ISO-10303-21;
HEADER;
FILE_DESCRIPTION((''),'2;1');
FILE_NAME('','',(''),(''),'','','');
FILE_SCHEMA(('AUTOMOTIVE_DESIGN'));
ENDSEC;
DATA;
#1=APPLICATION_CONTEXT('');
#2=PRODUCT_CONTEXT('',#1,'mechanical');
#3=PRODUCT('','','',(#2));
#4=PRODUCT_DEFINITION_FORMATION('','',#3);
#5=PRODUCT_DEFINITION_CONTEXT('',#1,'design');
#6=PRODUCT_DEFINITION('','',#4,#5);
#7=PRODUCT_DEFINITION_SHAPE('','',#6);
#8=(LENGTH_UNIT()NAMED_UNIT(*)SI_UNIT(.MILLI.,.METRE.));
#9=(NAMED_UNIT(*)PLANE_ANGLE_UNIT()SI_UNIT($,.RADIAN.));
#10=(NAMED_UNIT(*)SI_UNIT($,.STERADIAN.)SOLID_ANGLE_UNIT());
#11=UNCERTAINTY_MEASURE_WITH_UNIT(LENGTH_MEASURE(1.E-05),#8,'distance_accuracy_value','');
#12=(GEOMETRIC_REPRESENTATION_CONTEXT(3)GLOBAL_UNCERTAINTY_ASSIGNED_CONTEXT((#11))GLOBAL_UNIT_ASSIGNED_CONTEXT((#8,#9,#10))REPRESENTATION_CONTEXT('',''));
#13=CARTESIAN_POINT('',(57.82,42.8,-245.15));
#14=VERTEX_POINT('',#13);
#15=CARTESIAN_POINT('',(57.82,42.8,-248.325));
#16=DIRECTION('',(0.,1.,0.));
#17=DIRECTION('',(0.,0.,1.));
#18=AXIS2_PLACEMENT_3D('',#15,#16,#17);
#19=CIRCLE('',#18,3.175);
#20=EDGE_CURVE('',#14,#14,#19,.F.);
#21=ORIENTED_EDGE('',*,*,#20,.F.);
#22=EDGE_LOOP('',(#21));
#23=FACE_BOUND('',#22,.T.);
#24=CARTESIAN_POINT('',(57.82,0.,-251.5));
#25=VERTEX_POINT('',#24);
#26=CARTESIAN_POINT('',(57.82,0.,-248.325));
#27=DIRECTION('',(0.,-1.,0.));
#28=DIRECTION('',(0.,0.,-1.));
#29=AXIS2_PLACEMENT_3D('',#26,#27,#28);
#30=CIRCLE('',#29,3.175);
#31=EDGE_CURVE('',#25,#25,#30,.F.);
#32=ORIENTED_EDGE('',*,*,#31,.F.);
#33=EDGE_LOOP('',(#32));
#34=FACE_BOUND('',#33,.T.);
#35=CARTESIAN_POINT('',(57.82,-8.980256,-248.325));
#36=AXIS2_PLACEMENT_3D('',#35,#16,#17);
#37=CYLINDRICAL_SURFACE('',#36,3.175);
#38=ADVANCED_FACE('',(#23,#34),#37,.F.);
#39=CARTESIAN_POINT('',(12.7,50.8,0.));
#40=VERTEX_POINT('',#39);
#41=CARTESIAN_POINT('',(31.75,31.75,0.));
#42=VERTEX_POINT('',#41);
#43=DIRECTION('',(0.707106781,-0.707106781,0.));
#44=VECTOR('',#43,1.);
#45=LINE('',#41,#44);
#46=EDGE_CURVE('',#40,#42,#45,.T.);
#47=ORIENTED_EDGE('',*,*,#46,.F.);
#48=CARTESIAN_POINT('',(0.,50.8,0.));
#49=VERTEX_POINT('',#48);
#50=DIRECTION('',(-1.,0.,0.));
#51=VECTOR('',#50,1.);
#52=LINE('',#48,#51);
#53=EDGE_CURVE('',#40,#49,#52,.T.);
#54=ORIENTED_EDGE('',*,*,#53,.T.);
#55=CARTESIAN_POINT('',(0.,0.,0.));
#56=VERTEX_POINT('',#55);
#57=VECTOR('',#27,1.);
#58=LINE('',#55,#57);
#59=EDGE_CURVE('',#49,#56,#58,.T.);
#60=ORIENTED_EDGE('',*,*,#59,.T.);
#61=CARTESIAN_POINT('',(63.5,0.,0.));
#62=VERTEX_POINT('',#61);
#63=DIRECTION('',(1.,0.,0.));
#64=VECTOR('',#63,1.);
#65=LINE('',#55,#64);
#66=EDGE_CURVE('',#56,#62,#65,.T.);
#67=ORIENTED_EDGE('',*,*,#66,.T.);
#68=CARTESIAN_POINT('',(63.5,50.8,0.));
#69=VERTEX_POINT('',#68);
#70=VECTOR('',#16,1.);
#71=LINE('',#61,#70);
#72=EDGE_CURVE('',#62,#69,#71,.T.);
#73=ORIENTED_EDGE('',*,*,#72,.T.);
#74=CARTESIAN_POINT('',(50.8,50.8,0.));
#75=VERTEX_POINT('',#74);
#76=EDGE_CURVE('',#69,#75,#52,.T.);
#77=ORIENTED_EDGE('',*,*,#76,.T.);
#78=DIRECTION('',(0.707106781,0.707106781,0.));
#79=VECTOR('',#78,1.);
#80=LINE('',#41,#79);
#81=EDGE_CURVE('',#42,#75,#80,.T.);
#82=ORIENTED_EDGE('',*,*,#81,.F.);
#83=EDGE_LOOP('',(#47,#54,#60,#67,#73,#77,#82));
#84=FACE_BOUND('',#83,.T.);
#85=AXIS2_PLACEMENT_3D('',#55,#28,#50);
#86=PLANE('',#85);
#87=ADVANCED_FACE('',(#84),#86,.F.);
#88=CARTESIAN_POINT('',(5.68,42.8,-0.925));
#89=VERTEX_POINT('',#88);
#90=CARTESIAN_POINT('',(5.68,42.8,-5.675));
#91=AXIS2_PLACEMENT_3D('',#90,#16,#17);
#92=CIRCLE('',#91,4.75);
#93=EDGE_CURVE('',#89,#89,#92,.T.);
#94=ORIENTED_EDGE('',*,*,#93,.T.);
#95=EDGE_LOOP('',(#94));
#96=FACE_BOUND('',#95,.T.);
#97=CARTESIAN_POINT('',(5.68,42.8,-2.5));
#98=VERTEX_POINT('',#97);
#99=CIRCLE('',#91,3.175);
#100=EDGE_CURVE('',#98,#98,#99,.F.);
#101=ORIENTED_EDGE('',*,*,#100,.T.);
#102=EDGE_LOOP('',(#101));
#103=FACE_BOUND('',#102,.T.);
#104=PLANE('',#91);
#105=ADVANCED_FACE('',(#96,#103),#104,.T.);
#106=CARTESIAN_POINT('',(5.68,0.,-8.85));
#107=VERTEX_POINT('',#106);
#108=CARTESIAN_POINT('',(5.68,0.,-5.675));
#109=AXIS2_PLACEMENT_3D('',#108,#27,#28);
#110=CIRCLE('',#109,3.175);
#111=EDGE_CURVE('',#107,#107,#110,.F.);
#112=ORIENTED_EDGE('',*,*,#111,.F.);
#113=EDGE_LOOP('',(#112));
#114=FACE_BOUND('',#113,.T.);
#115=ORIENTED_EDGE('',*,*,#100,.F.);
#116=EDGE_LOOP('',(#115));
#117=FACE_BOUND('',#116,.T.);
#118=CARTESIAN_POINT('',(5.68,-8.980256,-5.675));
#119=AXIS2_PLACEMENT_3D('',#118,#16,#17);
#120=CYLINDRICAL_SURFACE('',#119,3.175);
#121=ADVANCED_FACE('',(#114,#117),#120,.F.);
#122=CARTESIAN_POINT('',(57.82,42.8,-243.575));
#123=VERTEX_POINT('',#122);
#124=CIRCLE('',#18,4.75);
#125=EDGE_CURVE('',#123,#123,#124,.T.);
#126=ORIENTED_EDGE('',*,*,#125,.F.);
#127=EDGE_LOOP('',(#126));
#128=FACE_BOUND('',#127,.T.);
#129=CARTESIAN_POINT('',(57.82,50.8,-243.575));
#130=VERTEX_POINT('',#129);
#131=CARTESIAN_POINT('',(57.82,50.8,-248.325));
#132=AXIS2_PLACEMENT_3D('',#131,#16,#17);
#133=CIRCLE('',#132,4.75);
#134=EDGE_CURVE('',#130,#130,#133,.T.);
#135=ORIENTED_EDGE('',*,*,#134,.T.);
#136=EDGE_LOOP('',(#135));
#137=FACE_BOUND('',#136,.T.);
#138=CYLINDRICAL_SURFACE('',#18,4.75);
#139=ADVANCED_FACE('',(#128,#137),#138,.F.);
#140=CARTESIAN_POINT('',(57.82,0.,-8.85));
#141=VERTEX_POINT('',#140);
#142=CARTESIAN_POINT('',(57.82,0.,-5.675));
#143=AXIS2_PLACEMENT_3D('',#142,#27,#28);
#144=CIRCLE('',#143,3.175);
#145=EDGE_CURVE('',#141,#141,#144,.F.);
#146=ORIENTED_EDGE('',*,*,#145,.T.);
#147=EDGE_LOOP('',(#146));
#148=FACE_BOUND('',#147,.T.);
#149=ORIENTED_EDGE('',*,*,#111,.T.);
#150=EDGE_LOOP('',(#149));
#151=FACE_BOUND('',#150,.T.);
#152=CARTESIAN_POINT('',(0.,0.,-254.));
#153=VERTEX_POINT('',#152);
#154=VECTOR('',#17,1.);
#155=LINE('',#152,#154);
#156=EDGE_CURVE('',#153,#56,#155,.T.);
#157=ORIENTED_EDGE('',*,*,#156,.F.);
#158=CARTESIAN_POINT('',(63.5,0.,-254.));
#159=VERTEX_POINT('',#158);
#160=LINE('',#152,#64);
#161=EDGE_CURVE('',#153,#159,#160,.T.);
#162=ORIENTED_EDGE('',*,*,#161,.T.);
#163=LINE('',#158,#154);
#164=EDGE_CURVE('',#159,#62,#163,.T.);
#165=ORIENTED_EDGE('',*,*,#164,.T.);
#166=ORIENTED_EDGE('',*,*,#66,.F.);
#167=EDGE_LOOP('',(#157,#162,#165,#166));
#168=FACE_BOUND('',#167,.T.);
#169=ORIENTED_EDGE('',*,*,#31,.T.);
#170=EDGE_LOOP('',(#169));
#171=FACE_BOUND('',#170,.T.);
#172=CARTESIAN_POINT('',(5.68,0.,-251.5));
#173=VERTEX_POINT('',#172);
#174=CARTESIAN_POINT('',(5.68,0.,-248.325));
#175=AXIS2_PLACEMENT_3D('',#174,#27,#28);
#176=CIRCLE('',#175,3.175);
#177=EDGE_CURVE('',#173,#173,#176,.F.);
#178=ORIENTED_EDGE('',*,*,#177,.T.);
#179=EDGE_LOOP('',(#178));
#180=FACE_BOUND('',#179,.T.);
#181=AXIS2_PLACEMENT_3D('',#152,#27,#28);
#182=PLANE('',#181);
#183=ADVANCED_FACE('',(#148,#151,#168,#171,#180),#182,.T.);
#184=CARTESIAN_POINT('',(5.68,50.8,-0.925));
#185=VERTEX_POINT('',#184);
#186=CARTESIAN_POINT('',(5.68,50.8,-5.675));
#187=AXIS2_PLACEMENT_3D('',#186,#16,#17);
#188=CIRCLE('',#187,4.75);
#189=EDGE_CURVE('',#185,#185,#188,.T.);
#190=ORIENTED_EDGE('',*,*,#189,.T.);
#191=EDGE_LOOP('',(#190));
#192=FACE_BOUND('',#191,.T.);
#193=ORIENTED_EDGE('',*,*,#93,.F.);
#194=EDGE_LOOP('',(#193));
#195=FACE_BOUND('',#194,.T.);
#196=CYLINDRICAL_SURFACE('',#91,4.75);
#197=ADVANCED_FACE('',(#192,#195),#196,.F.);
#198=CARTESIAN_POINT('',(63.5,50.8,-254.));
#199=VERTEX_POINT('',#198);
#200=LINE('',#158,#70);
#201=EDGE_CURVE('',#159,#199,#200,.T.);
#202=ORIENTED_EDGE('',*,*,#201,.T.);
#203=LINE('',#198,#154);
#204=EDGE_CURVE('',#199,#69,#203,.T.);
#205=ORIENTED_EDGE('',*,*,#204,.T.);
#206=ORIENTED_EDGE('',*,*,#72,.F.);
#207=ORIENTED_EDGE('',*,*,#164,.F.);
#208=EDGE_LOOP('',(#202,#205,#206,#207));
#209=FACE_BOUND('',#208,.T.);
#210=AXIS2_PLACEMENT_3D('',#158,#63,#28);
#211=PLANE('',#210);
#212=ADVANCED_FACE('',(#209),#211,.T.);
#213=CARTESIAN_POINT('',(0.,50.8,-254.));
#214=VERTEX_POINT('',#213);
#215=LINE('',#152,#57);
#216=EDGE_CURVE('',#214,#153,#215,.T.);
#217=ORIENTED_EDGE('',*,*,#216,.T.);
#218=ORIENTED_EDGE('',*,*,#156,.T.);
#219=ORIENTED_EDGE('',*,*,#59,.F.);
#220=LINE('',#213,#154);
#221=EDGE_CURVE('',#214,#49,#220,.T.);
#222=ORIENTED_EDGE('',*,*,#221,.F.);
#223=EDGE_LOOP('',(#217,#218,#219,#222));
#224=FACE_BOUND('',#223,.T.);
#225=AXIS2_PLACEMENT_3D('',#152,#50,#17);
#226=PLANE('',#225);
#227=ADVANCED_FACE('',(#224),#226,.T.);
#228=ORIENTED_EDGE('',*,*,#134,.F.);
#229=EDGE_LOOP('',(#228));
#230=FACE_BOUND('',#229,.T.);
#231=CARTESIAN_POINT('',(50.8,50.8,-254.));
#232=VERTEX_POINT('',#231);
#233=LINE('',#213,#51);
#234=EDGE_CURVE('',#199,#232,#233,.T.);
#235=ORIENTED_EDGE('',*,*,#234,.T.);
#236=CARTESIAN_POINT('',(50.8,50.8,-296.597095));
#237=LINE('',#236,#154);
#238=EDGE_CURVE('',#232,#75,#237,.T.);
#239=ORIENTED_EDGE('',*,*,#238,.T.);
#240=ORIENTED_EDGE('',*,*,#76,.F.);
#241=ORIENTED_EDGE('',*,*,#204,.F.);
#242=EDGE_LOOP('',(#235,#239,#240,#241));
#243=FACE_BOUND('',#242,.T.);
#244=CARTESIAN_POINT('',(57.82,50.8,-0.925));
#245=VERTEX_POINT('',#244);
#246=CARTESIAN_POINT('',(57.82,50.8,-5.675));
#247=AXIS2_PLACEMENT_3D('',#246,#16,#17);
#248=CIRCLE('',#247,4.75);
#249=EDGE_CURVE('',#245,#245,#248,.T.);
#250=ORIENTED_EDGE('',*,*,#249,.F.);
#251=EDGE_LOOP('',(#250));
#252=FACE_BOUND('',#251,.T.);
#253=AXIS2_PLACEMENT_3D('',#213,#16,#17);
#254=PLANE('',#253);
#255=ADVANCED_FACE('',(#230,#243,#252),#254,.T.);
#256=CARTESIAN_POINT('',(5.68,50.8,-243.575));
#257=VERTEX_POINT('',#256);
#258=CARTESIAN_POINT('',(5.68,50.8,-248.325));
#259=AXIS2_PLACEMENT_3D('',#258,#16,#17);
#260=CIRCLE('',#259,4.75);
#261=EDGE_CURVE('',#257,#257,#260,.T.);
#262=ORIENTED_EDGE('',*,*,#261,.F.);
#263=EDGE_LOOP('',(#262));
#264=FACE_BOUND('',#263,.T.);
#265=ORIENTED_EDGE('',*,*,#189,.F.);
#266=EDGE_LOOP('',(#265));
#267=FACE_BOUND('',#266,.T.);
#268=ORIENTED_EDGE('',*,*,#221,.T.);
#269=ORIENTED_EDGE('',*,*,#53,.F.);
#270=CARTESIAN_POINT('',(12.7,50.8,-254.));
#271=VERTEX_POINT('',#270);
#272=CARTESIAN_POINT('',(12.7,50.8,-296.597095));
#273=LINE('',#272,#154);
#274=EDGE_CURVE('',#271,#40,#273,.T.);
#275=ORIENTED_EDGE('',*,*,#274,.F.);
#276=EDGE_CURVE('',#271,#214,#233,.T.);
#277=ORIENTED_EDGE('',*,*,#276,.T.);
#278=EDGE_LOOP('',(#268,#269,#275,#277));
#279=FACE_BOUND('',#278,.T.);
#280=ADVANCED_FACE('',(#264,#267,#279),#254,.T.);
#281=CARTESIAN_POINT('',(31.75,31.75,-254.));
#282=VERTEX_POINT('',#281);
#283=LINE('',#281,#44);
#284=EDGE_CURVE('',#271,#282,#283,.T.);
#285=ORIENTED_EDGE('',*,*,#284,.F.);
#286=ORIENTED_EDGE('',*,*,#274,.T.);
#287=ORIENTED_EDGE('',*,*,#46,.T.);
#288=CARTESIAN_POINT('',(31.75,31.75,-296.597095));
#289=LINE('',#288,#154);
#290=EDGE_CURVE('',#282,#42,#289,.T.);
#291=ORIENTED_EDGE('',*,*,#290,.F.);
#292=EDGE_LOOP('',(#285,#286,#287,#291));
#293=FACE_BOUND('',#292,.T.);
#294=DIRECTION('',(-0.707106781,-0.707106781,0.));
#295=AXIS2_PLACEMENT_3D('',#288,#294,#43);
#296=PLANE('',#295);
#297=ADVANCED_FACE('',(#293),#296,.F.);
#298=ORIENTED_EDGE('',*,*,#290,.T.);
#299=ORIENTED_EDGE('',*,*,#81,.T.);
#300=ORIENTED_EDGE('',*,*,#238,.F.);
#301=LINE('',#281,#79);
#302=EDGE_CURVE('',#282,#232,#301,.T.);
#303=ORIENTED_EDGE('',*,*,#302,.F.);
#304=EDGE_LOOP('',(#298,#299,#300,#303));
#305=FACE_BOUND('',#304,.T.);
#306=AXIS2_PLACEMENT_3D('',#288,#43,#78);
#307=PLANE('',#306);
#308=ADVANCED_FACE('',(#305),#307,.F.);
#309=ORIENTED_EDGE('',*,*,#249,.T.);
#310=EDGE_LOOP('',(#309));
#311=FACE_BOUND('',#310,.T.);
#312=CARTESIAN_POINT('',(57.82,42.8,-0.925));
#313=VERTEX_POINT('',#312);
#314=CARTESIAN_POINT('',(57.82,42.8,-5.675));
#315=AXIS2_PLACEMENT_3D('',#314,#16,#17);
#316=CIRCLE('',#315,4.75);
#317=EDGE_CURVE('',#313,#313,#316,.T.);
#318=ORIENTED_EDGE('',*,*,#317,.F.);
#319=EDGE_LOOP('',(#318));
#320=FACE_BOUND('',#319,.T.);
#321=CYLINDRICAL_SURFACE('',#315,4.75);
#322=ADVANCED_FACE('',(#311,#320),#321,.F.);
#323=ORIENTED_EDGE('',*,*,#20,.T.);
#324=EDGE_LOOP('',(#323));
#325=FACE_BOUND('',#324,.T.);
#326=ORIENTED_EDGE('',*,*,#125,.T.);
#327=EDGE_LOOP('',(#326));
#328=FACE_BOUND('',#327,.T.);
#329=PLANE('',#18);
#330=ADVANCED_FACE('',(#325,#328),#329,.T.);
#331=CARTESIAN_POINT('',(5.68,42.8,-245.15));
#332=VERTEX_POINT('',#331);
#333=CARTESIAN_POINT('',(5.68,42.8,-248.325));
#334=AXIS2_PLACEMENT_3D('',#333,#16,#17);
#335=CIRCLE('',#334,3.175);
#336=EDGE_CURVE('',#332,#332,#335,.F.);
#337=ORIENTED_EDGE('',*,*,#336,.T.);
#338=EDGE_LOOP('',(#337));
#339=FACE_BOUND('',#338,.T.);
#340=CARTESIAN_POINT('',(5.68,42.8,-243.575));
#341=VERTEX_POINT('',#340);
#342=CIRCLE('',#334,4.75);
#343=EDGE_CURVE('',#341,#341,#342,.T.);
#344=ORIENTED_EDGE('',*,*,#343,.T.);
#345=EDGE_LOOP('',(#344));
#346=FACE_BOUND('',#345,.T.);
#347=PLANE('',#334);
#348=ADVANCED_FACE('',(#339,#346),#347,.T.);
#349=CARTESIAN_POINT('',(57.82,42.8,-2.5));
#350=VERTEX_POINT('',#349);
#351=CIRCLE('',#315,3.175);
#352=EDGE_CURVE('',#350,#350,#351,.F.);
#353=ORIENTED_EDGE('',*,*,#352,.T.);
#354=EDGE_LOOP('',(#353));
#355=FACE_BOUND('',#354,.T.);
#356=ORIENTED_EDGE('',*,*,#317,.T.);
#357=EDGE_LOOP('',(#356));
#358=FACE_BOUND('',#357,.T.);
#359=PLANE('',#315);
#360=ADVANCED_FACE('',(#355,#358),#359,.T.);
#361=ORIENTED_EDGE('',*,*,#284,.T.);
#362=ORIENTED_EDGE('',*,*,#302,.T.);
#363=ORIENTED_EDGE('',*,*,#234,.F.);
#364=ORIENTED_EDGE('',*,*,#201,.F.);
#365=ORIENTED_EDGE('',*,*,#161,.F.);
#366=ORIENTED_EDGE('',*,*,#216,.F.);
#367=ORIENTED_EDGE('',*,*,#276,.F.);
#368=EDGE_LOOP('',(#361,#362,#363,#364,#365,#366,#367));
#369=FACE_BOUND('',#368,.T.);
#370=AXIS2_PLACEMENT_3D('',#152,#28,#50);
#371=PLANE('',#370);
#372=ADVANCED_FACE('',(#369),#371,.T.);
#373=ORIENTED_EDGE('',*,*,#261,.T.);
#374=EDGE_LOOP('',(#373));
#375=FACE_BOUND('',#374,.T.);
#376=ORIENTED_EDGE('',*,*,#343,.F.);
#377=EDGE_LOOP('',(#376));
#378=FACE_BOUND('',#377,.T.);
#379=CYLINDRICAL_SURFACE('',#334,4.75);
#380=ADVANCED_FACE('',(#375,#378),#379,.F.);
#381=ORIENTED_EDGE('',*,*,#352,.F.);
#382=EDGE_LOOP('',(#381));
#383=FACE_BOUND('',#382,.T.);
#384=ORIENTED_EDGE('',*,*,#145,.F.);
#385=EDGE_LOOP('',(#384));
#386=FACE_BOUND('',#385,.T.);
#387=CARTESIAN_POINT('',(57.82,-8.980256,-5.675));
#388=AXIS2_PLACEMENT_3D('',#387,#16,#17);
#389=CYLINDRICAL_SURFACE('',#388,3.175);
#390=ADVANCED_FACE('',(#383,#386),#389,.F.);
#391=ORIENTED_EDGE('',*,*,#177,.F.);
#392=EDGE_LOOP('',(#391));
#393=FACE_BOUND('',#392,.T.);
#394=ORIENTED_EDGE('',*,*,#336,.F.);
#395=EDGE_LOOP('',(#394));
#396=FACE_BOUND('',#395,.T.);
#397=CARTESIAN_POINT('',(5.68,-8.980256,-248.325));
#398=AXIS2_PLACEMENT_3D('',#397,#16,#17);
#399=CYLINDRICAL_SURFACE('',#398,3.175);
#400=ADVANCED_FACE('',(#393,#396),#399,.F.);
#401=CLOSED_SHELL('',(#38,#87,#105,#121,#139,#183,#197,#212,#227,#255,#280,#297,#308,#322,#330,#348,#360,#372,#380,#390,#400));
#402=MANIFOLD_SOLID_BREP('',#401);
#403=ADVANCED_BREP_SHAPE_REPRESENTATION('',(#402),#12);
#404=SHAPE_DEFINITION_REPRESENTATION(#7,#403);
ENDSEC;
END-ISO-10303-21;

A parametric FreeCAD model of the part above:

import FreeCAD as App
import Part
import Sketcher

V = App.Vector
Q = App.Units.Quantity

doc = App.newDocument("Part")
body = doc.addObject("PartDesign::Body", "Body")

sketch1 = doc.addObject("Sketcher::SketchObject", "Sketch")
body.addObject(sketch1)
sketch1.AttachmentSupport = (doc.XY_Plane, [""])
sketch1.MapMode = "FlatFace"
sketch1.addGeometry(Part.LineSegment(V(0, 51, 0), V(0, 0, 0)), False)
sketch1.addGeometry(Part.LineSegment(V(0, 0, 0), V(64, 0, 0)), False)
sketch1.addGeometry(Part.LineSegment(V(64, 0, 0), V(64, 51, 0)), False)
sketch1.addGeometry(Part.LineSegment(V(64, 51, 0), V(0, 51, 0)), False)
sketch1.addConstraint(Sketcher.Constraint("Coincident", 0, 2, 1, 1))
sketch1.addConstraint(Sketcher.Constraint("Coincident", 1, 2, 2, 1))
sketch1.addConstraint(Sketcher.Constraint("Coincident", 2, 2, 3, 1))
sketch1.addConstraint(Sketcher.Constraint("Coincident", 3, 2, 0, 1))
sketch1.addConstraint(Sketcher.Constraint("Vertical", 0))
sketch1.addConstraint(Sketcher.Constraint("Horizontal", 1))
sketch1.addConstraint(Sketcher.Constraint("Vertical", 2))
sketch1.addConstraint(Sketcher.Constraint("Horizontal", 3))
sketch1.addConstraint(Sketcher.Constraint("Coincident", 0, 2, -1, 1))
sketch1.addConstraint(Sketcher.Constraint("DistanceY", 0, 2, 0, 1, Q("2 in")))
sketch1.addConstraint(Sketcher.Constraint("DistanceX", 1, 1, 1, 2, Q("2.5 in")))
pad1 = doc.addObject("PartDesign::Pad", "Pad")
body.addObject(pad1)
pad1.Profile = sketch1
pad1.Length = Q("10 in")
pad1.Reversed = True

sketch2 = doc.addObject("Sketcher::SketchObject", "Sketch001")
body.addObject(sketch2)
sketch2.AttachmentSupport = (doc.XZ_Plane, [""])
sketch2.MapMode = "FlatFace"
sketch2.AttachmentOffset = App.Placement(V(0, 0, -2 * 25.4), App.Rotation())
sketch2.addGeometry(Part.Circle(V(57.8, -5.7, 0), V(0, 0, 1), 3.2), False)
sketch2.addGeometry(Part.Circle(V(5.7, -5.7, 0), V(0, 0, 1), 3.2), False)
sketch2.addGeometry(Part.Circle(V(5.7, -248.3, 0), V(0, 0, 1), 3.2), False)
sketch2.addGeometry(Part.Circle(V(57.8, -248.3, 0), V(0, 0, 1), 3.2), False)
sketch2.addConstraint(Sketcher.Constraint("Equal", 0, 1))
sketch2.addConstraint(Sketcher.Constraint("Equal", 1, 2))
sketch2.addConstraint(Sketcher.Constraint("Equal", 2, 3))
sketch2.addConstraint(Sketcher.Constraint("Horizontal", 0, 3, 1, 3))
sketch2.addConstraint(Sketcher.Constraint("Horizontal", 2, 3, 3, 3))
sketch2.addConstraint(Sketcher.Constraint("Vertical", 1, 3, 2, 3))
sketch2.addConstraint(Sketcher.Constraint("Vertical", 0, 3, 3, 3))
sketch2.addConstraint(Sketcher.Constraint("Diameter", 0, Q("0.25 in")))
sketch2.addConstraint(Sketcher.Constraint("DistanceX", -1, 1, 0, 3, Q("57.82 mm")))
sketch2.addConstraint(Sketcher.Constraint("DistanceY", 0, 3, -1, 1, Q("5.675 mm")))
sketch2.addConstraint(Sketcher.Constraint("DistanceX", -1, 1, 1, 3, Q("5.68 mm")))
sketch2.addConstraint(Sketcher.Constraint("DistanceY", 2, 3, -1, 1, Q("248.325 mm")))
pocket1 = doc.addObject("PartDesign::Pocket", "Pocket")
body.addObject(pocket1)
pocket1.Profile = sketch2
pocket1.Length = Q("2 in")
pocket1.Reversed = True

sketch3 = doc.addObject("Sketcher::SketchObject", "Sketch002")
body.addObject(sketch3)
sketch3.AttachmentSupport = (doc.XZ_Plane, [""])
sketch3.MapMode = "FlatFace"
sketch3.AttachmentOffset = App.Placement(V(0, 0, -2 * 25.4), App.Rotation())
sketch3.addGeometry(Part.Circle(V(57.8, -5.7, 0), V(0, 0, 1), 4.8), False)
sketch3.addGeometry(Part.Circle(V(5.7, -5.7, 0), V(0, 0, 1), 4.8), False)
sketch3.addConstraint(Sketcher.Constraint("Equal", 0, 1))
sketch3.addConstraint(Sketcher.Constraint("Horizontal", 0, 3, 1, 3))
sketch3.addConstraint(Sketcher.Constraint("Diameter", 0, Q("9.5 mm")))
sketch3.addConstraint(Sketcher.Constraint("DistanceX", -1, 1, 0, 3, Q("57.82 mm")))
sketch3.addConstraint(Sketcher.Constraint("DistanceY", 0, 3, -1, 1, Q("5.675 mm")))
sketch3.addConstraint(Sketcher.Constraint("DistanceX", -1, 1, 1, 3, Q("5.68 mm")))
pocket2 = doc.addObject("PartDesign::Pocket", "Pocket001")
body.addObject(pocket2)
pocket2.Profile = sketch3
pocket2.Length = 8
pocket2.Reversed = True

sketch4 = doc.addObject("Sketcher::SketchObject", "Sketch003")
body.addObject(sketch4)
sketch4.AttachmentSupport = (doc.XY_Plane, [""])
sketch4.MapMode = "FlatFace"
sketch4.addGeometry(Part.LineSegment(V(32, 32, 0), V(51, 51, 0)), False)
sketch4.addGeometry(Part.LineSegment(V(51, 51, 0), V(13, 51, 0)), False)
sketch4.addGeometry(Part.LineSegment(V(13, 51, 0), V(32, 32, 0)), False)
sketch4.addConstraint(Sketcher.Constraint("Coincident", 0, 2, 1, 1))
sketch4.addConstraint(Sketcher.Constraint("Coincident", 1, 2, 2, 1))
sketch4.addConstraint(Sketcher.Constraint("Coincident", 2, 2, 0, 1))
sketch4.addConstraint(Sketcher.Constraint("Horizontal", 1))
sketch4.addConstraint(Sketcher.Constraint("Perpendicular", 0, 2))
sketch4.addConstraint(Sketcher.Constraint("Equal", 0, 2))
sketch4.addConstraint(Sketcher.Constraint("DistanceX", 1, 2, 1, 1, Q("1.5 in")))
sketch4.addConstraint(Sketcher.Constraint("DistanceX", -1, 1, 0, 2, Q("2 in")))
sketch4.addConstraint(Sketcher.Constraint("DistanceY", -1, 1, 0, 2, Q("2 in")))
pocket3 = doc.addObject("PartDesign::Pocket", "Pocket002")
body.addObject(pocket3)
pocket3.Profile = sketch4
pocket3.Length = Q("10 in")

sketch5 = doc.addObject("Sketcher::SketchObject", "Sketch004")
body.addObject(sketch5)
sketch5.AttachmentSupport = (doc.XZ_Plane, [""])
sketch5.MapMode = "FlatFace"
sketch5.AttachmentOffset = App.Placement(V(0, 0, -2 * 25.4), App.Rotation())
sketch5.addGeometry(Part.Circle(V(57.8, -248.3, 0), V(0, 0, 1), 4.8), False)
sketch5.addGeometry(Part.Circle(V(5.7, -248.3, 0), V(0, 0, 1), 4.8), False)
sketch5.addConstraint(Sketcher.Constraint("Equal", 0, 1))
sketch5.addConstraint(Sketcher.Constraint("Horizontal", 0, 3, 1, 3))
sketch5.addConstraint(Sketcher.Constraint("Diameter", 0, Q("9.5 mm")))
sketch5.addConstraint(Sketcher.Constraint("DistanceX", -1, 1, 0, 3, Q("57.82 mm")))
sketch5.addConstraint(Sketcher.Constraint("DistanceY", 0, 3, -1, 1, Q("248.325 mm")))
sketch5.addConstraint(Sketcher.Constraint("DistanceX", -1, 1, 1, 3, Q("5.68 mm")))
pocket4 = doc.addObject("PartDesign::Pocket", "Pocket003")
body.addObject(pocket4)
pocket4.Profile = sketch5
pocket4.Length = 8
pocket4.Reversed = True

doc.recompute()
